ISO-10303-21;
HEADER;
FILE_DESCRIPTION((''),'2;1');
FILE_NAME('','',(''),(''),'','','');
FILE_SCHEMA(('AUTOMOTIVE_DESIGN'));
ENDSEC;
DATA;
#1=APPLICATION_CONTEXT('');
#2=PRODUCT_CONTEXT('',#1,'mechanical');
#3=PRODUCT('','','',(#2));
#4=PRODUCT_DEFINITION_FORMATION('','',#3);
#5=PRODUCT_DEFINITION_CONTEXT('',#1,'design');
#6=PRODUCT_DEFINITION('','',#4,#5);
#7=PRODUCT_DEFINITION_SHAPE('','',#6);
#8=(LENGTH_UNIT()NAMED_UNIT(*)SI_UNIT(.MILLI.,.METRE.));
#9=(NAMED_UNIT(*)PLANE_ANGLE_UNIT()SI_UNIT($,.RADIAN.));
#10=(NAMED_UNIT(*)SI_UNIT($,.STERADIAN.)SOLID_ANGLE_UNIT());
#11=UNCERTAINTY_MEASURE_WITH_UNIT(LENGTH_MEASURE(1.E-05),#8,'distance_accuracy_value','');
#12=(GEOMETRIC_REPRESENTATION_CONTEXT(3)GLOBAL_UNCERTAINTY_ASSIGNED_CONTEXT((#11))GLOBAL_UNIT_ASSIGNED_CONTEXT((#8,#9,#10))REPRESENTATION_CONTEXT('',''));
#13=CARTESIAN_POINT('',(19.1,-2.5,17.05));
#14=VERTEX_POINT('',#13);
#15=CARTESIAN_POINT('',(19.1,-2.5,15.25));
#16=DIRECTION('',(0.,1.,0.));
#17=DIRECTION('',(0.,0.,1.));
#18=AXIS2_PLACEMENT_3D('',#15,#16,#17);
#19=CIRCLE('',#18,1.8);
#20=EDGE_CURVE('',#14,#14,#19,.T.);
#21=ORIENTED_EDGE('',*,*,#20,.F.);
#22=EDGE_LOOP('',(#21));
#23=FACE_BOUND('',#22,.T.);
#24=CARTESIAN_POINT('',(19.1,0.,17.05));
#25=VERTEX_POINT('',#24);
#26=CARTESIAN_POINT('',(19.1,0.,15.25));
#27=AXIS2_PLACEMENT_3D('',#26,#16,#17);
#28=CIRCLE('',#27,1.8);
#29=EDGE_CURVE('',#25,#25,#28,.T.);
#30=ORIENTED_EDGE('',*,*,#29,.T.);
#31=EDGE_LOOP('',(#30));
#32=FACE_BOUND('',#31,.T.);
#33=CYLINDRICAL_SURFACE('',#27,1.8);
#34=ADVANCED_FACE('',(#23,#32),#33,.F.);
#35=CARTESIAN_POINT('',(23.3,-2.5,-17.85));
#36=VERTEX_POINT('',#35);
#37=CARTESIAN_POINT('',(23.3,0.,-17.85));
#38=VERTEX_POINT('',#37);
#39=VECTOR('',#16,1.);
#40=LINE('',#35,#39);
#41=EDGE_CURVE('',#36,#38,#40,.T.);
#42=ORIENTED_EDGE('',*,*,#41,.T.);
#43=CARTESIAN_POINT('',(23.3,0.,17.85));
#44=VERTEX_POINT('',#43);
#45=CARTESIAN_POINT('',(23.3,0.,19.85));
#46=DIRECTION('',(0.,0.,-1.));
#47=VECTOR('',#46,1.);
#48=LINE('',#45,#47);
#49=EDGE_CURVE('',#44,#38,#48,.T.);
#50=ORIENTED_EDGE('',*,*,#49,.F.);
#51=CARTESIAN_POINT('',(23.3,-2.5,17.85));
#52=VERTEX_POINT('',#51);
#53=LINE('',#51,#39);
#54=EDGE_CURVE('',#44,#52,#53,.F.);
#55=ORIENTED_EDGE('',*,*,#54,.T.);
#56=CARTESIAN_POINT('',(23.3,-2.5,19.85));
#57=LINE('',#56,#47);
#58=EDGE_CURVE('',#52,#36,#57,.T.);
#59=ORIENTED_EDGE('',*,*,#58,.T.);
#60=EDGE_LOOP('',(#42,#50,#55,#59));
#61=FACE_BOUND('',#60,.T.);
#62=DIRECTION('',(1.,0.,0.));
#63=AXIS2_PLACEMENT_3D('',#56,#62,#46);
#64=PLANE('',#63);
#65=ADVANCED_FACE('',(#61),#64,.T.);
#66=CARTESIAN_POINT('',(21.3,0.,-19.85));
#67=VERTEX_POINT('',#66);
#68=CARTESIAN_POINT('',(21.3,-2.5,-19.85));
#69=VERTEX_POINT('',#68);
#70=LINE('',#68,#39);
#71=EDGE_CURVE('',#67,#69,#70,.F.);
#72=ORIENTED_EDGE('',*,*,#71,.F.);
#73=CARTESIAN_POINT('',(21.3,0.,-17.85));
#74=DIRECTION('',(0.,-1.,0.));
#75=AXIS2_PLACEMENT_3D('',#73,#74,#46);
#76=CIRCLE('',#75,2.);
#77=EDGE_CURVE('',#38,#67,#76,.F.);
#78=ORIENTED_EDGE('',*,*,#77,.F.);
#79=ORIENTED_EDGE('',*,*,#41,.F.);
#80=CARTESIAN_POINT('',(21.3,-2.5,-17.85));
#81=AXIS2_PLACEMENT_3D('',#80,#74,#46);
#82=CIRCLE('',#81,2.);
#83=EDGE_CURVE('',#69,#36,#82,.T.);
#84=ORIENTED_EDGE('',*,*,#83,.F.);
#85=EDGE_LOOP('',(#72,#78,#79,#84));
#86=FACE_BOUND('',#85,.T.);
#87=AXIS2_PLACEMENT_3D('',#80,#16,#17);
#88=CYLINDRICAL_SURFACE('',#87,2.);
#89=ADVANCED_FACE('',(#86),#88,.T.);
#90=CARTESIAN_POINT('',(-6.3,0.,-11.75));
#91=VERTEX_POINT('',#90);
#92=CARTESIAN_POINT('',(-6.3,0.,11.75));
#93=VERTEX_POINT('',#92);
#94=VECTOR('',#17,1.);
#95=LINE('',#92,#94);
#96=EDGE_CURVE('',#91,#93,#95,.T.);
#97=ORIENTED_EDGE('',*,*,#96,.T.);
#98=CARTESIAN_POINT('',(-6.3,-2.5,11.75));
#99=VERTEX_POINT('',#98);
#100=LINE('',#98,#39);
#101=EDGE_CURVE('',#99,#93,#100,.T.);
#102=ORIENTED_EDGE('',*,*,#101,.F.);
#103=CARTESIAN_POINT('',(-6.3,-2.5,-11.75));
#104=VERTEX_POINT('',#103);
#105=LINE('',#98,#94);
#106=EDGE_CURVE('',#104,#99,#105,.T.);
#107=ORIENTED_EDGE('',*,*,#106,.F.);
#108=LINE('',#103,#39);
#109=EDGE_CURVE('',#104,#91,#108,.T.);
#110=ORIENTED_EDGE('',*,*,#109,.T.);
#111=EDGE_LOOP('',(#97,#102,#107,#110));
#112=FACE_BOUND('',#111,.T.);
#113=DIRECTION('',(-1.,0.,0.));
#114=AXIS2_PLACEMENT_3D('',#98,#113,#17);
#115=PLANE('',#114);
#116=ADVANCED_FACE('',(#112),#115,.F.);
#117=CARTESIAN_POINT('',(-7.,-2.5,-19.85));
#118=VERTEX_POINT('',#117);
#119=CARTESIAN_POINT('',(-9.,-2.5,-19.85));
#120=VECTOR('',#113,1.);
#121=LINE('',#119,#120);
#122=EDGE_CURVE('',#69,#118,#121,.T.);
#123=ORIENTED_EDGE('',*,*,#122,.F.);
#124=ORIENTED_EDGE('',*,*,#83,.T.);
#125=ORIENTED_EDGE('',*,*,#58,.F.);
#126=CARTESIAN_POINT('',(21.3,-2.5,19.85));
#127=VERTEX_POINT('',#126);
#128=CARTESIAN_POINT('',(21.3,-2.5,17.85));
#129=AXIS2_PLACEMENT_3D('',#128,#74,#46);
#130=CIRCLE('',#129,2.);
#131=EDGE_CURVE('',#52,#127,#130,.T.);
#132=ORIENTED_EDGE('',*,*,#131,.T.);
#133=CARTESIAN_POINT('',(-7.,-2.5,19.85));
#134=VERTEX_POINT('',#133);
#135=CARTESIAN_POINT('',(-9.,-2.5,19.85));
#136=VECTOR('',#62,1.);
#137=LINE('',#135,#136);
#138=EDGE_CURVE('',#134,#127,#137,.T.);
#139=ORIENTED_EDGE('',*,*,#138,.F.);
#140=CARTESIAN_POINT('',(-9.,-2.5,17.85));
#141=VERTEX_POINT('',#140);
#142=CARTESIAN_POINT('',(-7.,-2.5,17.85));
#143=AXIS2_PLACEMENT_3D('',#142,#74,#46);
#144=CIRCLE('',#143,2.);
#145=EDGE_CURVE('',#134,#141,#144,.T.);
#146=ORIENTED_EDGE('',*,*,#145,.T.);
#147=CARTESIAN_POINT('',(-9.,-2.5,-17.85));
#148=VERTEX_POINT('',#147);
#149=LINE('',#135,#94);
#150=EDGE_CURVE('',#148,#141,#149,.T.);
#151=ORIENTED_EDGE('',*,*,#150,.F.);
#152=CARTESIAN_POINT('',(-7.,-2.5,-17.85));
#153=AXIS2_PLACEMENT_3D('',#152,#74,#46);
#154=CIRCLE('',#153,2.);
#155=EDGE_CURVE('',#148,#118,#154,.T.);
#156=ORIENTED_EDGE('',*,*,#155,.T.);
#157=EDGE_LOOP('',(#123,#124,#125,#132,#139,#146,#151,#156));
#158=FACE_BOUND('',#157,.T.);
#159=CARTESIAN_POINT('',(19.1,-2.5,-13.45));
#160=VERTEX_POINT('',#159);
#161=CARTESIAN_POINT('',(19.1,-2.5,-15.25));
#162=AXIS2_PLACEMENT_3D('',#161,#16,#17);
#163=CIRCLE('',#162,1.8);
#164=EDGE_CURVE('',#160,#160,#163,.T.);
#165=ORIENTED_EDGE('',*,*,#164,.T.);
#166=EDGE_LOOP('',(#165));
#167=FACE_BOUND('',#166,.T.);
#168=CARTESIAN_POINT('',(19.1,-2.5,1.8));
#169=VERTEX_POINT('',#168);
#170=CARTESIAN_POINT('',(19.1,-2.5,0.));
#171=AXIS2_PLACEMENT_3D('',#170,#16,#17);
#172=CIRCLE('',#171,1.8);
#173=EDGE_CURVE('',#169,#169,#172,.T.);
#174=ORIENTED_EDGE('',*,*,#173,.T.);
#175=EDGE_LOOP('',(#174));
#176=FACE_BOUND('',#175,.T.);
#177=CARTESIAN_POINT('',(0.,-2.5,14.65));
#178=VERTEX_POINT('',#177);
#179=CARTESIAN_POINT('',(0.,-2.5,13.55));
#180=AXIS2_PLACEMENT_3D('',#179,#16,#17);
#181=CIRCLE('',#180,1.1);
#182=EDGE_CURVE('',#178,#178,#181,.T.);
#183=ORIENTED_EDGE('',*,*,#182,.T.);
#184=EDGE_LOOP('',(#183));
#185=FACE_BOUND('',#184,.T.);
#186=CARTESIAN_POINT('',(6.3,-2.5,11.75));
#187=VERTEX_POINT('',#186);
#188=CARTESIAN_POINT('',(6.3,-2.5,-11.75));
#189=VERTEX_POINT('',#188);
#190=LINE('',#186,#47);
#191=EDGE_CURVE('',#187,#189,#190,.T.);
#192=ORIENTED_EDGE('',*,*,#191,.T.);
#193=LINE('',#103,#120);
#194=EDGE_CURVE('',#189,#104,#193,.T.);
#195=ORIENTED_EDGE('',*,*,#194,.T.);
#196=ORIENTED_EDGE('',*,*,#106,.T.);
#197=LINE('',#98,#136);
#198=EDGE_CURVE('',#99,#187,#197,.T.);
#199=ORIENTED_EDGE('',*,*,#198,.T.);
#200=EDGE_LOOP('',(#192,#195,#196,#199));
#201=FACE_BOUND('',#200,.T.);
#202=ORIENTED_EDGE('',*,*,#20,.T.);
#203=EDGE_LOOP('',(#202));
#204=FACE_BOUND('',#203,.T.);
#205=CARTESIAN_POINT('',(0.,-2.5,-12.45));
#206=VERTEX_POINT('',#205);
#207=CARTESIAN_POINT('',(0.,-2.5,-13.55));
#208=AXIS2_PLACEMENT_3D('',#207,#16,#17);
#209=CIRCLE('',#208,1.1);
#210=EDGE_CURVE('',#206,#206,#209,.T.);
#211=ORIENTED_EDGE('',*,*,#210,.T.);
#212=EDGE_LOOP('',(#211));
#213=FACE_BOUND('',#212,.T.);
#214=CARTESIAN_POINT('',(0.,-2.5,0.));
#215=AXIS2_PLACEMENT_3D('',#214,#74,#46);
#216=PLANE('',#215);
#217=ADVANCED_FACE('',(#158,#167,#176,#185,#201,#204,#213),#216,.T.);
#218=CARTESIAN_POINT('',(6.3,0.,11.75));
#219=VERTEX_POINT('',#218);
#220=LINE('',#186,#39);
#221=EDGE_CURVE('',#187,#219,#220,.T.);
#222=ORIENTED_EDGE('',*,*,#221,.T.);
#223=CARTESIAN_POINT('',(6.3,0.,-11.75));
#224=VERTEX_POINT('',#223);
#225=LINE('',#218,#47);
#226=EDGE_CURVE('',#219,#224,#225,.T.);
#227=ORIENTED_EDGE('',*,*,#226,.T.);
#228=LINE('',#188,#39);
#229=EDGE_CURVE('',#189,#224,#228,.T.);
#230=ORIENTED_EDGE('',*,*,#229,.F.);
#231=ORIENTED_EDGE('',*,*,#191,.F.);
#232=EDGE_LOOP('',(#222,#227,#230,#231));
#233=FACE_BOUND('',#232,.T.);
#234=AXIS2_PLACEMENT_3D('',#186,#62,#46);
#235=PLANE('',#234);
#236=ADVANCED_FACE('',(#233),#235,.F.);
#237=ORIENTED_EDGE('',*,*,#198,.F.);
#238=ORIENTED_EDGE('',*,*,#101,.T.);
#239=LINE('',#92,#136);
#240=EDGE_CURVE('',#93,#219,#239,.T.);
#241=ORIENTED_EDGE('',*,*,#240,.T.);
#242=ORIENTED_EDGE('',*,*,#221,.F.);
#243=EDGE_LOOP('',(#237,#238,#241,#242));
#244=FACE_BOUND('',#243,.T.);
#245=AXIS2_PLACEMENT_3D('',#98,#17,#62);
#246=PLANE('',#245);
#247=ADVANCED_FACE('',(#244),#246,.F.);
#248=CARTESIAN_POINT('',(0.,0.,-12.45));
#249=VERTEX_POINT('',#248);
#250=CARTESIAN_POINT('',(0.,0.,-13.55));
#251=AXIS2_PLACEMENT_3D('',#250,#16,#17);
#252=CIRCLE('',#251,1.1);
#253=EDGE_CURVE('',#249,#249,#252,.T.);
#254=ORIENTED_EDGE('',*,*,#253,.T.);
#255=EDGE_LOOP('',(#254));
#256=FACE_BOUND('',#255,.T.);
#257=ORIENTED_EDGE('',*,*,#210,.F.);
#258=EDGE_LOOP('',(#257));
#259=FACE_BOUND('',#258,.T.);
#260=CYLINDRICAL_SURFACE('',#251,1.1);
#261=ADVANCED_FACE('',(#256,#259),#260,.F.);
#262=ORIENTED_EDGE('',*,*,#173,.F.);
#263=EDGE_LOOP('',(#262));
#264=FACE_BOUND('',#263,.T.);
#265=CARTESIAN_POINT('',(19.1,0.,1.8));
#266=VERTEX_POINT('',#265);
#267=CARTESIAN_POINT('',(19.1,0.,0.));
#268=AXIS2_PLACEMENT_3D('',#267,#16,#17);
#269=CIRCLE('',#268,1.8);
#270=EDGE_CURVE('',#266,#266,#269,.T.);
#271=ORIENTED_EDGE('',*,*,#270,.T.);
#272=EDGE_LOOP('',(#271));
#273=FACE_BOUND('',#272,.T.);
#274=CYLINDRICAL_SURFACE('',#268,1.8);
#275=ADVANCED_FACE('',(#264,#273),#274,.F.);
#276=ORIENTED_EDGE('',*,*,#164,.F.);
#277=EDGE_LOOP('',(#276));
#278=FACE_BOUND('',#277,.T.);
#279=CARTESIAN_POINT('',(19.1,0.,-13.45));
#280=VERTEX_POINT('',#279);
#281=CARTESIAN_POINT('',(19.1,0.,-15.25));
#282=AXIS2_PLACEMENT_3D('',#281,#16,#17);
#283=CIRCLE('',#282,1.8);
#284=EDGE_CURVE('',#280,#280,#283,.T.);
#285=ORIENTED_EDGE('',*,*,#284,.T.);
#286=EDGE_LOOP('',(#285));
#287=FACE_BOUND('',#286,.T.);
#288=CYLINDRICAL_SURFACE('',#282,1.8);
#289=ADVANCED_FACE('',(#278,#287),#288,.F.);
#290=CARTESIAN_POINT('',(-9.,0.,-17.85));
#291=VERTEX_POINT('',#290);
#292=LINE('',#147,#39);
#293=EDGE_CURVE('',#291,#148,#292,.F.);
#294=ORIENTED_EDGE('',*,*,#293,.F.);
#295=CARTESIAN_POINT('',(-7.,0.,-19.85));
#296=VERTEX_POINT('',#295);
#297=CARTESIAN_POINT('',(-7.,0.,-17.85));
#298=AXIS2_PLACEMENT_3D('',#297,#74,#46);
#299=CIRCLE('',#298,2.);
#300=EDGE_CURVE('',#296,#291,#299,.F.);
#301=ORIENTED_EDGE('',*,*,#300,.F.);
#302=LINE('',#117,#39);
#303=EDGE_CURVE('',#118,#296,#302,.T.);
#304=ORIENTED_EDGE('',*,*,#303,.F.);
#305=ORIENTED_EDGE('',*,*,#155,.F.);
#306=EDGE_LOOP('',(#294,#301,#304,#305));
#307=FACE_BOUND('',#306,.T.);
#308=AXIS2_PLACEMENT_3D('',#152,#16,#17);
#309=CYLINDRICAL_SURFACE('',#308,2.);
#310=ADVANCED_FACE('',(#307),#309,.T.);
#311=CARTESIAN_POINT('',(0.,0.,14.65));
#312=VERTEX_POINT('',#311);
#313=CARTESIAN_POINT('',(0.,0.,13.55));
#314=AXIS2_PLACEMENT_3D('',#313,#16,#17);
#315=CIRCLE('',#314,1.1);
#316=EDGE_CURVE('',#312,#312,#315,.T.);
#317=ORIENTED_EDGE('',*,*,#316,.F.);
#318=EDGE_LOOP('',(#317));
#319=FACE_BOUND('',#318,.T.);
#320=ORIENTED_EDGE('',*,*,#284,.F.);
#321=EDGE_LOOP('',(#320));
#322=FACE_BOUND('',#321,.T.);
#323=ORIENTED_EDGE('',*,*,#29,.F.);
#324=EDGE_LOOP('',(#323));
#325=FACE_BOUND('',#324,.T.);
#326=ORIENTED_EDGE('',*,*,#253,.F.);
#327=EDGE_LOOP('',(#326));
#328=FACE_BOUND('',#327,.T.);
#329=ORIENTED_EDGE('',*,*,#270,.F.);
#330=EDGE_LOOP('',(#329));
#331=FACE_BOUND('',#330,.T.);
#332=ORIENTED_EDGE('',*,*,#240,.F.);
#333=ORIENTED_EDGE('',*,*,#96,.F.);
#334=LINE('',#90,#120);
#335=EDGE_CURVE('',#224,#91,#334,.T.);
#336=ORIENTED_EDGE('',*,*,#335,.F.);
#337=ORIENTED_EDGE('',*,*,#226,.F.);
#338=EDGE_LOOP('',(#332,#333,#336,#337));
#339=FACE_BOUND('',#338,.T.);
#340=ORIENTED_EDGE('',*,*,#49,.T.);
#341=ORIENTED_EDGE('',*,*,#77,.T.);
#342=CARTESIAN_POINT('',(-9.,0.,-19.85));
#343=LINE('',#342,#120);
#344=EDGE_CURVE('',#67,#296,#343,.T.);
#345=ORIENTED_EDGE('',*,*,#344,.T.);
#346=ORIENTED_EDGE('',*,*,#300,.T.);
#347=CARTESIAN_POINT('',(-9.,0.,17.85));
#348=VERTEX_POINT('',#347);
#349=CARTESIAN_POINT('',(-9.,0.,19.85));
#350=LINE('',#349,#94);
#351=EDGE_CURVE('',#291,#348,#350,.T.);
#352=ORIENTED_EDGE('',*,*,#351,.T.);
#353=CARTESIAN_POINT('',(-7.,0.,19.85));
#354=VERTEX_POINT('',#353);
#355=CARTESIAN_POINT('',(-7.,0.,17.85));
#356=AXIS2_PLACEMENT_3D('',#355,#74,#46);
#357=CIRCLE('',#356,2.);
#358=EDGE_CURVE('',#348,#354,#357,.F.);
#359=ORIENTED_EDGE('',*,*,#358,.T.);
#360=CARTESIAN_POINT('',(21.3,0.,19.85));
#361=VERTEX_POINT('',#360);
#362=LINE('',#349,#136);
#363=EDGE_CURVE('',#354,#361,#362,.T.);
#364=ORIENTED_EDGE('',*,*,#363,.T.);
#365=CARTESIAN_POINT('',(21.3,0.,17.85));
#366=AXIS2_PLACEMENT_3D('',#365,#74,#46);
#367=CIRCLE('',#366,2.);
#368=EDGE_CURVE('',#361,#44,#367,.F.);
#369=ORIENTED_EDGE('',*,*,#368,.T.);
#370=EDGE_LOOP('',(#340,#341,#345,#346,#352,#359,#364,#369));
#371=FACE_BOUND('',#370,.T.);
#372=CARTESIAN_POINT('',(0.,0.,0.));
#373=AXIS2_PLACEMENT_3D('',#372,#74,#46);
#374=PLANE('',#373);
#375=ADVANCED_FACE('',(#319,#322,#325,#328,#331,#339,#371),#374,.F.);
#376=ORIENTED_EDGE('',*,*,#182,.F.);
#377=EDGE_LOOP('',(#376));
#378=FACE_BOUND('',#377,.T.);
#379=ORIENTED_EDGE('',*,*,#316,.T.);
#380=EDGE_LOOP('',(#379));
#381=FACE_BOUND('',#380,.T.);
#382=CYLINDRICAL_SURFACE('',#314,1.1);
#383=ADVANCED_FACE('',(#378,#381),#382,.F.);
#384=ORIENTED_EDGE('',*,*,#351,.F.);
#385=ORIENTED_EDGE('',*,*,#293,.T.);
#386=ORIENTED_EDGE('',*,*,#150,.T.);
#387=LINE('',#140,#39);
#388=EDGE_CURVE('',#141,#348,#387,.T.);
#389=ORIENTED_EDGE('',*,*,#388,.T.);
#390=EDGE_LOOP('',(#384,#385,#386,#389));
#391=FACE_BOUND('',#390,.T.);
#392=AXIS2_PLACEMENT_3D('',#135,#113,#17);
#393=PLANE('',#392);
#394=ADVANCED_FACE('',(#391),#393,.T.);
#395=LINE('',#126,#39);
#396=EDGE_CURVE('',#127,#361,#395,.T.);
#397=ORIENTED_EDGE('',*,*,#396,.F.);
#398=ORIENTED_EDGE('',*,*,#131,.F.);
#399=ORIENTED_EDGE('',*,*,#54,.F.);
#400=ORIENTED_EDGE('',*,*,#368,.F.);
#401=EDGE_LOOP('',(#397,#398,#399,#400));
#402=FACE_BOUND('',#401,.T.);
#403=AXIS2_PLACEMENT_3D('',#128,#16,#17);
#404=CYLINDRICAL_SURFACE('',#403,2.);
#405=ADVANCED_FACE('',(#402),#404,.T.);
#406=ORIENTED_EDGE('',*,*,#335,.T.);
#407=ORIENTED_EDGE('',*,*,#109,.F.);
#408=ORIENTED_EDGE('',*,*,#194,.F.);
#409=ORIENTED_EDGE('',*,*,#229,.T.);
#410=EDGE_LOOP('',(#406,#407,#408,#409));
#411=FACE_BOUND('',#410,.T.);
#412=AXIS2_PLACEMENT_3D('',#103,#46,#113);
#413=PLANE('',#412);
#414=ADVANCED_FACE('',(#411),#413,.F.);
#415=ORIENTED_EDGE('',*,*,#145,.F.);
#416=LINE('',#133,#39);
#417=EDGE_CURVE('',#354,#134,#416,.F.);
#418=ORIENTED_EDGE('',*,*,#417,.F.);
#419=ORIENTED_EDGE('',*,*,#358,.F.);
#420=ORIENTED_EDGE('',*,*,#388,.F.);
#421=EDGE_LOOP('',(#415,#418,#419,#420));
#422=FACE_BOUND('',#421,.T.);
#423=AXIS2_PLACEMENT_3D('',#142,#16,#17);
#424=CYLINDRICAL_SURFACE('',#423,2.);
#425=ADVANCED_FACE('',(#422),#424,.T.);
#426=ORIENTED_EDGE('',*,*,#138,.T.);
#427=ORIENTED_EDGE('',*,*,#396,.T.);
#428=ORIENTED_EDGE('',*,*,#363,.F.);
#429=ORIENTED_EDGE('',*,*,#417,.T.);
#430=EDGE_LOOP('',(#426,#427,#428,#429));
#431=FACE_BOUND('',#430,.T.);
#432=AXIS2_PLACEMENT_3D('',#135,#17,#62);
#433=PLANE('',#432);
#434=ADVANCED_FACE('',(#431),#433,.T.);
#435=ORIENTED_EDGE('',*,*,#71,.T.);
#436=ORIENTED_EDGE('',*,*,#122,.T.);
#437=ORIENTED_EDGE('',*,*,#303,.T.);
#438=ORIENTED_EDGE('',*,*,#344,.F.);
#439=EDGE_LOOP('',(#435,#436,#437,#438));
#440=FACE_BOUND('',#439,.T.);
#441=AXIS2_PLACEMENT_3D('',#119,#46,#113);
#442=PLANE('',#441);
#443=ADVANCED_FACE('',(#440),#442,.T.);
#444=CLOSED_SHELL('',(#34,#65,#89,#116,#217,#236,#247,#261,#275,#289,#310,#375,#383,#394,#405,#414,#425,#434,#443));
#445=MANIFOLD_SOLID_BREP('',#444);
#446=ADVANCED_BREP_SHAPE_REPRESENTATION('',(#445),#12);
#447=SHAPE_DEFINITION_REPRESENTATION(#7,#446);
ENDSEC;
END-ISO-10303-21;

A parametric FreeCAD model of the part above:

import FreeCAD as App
import Part
import Sketcher
Q = App.Units.Quantity


def edges_at(feature, points):
    """Names of the edges that pass closest to the given points."""
    edges = feature.Shape.Edges
    near = lambda p: min(range(len(edges)), key=lambda i: edges[i].distToShape(Part.Vertex(*p))[0])
    return sorted({f"Edge{near(p) + 1}" for p in points})

doc = App.newDocument("Part")
body = doc.addObject("PartDesign::Body", "Body")

sketch1 = body.newObject("Sketcher::SketchObject", "Sketch")
sketch1.AttachmentSupport = (doc.getObject("XZ_Plane"), [""])
sketch1.MapMode = "FlatFace"
sketch1.addGeometry([
    Part.LineSegment(App.Vector(-9, -20, 0), App.Vector(-9, 20, 0)),
    Part.LineSegment(App.Vector(-9, 20, 0), App.Vector(23, 20, 0)),
    Part.LineSegment(App.Vector(23, 20, 0), App.Vector(23, -20, 0)),
    Part.LineSegment(App.Vector(23, -20, 0), App.Vector(-9, -20, 0)),
], False)
sketch1.addConstraint([
    Sketcher.Constraint("Coincident", 0, 2, 1, 1),
    Sketcher.Constraint("Coincident", 1, 2, 2, 1),
    Sketcher.Constraint("Coincident", 2, 2, 3, 1),
    Sketcher.Constraint("Coincident", 3, 2, 0, 1),
    Sketcher.Constraint("Vertical", 0),
    Sketcher.Constraint("Horizontal", 1),
    Sketcher.Constraint("Vertical", 2),
    Sketcher.Constraint("Horizontal", 3),
    Sketcher.Constraint("DistanceX", 1, 1, 1, 2, Q("32.3 mm")),
    Sketcher.Constraint("DistanceY", 0, 1, 0, 2, Q("39.7 mm")),
    Sketcher.Constraint("DistanceX", 0, 2, -1, 1, Q("9 mm")),
    Sketcher.Constraint("DistanceY", -1, 1, 0, 2, Q("19.85 mm")),
])
pad1 = body.newObject("PartDesign::Pad", "Pad")
pad1.Profile = sketch1
pad1.Length = 2.5

sketch2 = body.newObject("Sketcher::SketchObject", "Sketch001")
sketch2.AttachmentSupport = (doc.getObject("XZ_Plane"), [""])
sketch2.MapMode = "FlatFace"
sketch2.addGeometry([
    Part.LineSegment(App.Vector(-6, -12, 0), App.Vector(-6, 12, 0)),
    Part.LineSegment(App.Vector(-6, 12, 0), App.Vector(6, 12, 0)),
    Part.LineSegment(App.Vector(6, 12, 0), App.Vector(6, -12, 0)),
    Part.LineSegment(App.Vector(6, -12, 0), App.Vector(-6, -12, 0)),
], False)
sketch2.addConstraint([
    Sketcher.Constraint("Coincident", 0, 2, 1, 1),
    Sketcher.Constraint("Coincident", 1, 2, 2, 1),
    Sketcher.Constraint("Coincident", 2, 2, 3, 1),
    Sketcher.Constraint("Coincident", 3, 2, 0, 1),
    Sketcher.Constraint("Vertical", 0),
    Sketcher.Constraint("Horizontal", 1),
    Sketcher.Constraint("Vertical", 2),
    Sketcher.Constraint("Horizontal", 3),
    Sketcher.Constraint("Symmetric", 0, 2, 2, 2, -1, 1),
    Sketcher.Constraint("DistanceX", 1, 1, 1, 2, Q("12.6 mm")),
    Sketcher.Constraint("DistanceY", 0, 1, 0, 2, Q("23.5 mm")),
])
pocket1 = body.newObject("PartDesign::Pocket", "Pocket")
pocket1.Profile = sketch2
pocket1.Type = "ThroughAll"
pocket1.Reversed = True

sketch3 = body.newObject("Sketcher::SketchObject", "Sketch002")
sketch3.AttachmentSupport = (doc.getObject("XZ_Plane"), [""])
sketch3.MapMode = "FlatFace"
sketch3.addGeometry([
    Part.Circle(App.Vector(0, 13.6, 0), App.Vector(0, 0, 1), 1.1),
    Part.Circle(App.Vector(0, -13.6, 0), App.Vector(0, 0, 1), 1.1),
], False)
sketch3.addConstraint([
    Sketcher.Constraint("Equal", 0, 1),
    Sketcher.Constraint("Symmetric", 0, 3, 1, 3, -1, 1),
    Sketcher.Constraint("PointOnObject", 0, 3, -2),
    Sketcher.Constraint("Diameter", 0, Q("2.2 mm")),
    Sketcher.Constraint("DistanceY", 1, 3, 0, 3, Q("27.1 mm")),
])
doc.recompute()
hole = body.newObject("PartDesign::Hole", "Hole")
hole.Profile = sketch3
hole.ThreadType = "None"
hole.Diameter = 2.2
hole.DepthType = "ThroughAll"
hole.Reversed = True

sketch4 = body.newObject("Sketcher::SketchObject", "Sketch003")
sketch4.AttachmentSupport = (doc.getObject("XZ_Plane"), [""])
sketch4.MapMode = "FlatFace"
sketch4.addGeometry([
    Part.Circle(App.Vector(19.1, 15.2, 0), App.Vector(0, 0, 1), 1.8),
    Part.Circle(App.Vector(19.1, 0, 0), App.Vector(0, 0, 1), 1.8),
    Part.Circle(App.Vector(19.1, -15.2, 0), App.Vector(0, 0, 1), 1.8),
], False)
sketch4.addConstraint([
    Sketcher.Constraint("Equal", 0, 1),
    Sketcher.Constraint("Equal", 1, 2),
    Sketcher.Constraint("Symmetric", 0, 3, 2, 3, -1),
    Sketcher.Constraint("PointOnObject", 1, 3, -1),
    Sketcher.Constraint("Vertical", 0, 3, 1, 3),
    Sketcher.Constraint("Diameter", 0, Q("3.6 mm")),
    Sketcher.Constraint("DistanceX", -1, 1, 0, 3, Q("19.1 mm")),
    Sketcher.Constraint("DistanceY", 2, 3, 0, 3, Q("30.5 mm")),
])
doc.recompute()
hole2 = body.newObject("PartDesign::Hole", "Hole001")
hole2.Profile = sketch4
hole2.ThreadType = "None"
hole2.Diameter = 3.6
hole2.DepthType = "ThroughAll"
hole2.Reversed = True
doc.recompute()

fillet = body.newObject("PartDesign::Fillet", "Fillet")
fillet.Base = (hole2, edges_at(hole2, [
    (-9, -1.25, -19.85),
    (23.3, -1.25, -19.85),
    (23.3, -1.25, 19.85),
    (-9, -1.25, 19.85),
]))
fillet.Radius = 2

doc.recompute()
